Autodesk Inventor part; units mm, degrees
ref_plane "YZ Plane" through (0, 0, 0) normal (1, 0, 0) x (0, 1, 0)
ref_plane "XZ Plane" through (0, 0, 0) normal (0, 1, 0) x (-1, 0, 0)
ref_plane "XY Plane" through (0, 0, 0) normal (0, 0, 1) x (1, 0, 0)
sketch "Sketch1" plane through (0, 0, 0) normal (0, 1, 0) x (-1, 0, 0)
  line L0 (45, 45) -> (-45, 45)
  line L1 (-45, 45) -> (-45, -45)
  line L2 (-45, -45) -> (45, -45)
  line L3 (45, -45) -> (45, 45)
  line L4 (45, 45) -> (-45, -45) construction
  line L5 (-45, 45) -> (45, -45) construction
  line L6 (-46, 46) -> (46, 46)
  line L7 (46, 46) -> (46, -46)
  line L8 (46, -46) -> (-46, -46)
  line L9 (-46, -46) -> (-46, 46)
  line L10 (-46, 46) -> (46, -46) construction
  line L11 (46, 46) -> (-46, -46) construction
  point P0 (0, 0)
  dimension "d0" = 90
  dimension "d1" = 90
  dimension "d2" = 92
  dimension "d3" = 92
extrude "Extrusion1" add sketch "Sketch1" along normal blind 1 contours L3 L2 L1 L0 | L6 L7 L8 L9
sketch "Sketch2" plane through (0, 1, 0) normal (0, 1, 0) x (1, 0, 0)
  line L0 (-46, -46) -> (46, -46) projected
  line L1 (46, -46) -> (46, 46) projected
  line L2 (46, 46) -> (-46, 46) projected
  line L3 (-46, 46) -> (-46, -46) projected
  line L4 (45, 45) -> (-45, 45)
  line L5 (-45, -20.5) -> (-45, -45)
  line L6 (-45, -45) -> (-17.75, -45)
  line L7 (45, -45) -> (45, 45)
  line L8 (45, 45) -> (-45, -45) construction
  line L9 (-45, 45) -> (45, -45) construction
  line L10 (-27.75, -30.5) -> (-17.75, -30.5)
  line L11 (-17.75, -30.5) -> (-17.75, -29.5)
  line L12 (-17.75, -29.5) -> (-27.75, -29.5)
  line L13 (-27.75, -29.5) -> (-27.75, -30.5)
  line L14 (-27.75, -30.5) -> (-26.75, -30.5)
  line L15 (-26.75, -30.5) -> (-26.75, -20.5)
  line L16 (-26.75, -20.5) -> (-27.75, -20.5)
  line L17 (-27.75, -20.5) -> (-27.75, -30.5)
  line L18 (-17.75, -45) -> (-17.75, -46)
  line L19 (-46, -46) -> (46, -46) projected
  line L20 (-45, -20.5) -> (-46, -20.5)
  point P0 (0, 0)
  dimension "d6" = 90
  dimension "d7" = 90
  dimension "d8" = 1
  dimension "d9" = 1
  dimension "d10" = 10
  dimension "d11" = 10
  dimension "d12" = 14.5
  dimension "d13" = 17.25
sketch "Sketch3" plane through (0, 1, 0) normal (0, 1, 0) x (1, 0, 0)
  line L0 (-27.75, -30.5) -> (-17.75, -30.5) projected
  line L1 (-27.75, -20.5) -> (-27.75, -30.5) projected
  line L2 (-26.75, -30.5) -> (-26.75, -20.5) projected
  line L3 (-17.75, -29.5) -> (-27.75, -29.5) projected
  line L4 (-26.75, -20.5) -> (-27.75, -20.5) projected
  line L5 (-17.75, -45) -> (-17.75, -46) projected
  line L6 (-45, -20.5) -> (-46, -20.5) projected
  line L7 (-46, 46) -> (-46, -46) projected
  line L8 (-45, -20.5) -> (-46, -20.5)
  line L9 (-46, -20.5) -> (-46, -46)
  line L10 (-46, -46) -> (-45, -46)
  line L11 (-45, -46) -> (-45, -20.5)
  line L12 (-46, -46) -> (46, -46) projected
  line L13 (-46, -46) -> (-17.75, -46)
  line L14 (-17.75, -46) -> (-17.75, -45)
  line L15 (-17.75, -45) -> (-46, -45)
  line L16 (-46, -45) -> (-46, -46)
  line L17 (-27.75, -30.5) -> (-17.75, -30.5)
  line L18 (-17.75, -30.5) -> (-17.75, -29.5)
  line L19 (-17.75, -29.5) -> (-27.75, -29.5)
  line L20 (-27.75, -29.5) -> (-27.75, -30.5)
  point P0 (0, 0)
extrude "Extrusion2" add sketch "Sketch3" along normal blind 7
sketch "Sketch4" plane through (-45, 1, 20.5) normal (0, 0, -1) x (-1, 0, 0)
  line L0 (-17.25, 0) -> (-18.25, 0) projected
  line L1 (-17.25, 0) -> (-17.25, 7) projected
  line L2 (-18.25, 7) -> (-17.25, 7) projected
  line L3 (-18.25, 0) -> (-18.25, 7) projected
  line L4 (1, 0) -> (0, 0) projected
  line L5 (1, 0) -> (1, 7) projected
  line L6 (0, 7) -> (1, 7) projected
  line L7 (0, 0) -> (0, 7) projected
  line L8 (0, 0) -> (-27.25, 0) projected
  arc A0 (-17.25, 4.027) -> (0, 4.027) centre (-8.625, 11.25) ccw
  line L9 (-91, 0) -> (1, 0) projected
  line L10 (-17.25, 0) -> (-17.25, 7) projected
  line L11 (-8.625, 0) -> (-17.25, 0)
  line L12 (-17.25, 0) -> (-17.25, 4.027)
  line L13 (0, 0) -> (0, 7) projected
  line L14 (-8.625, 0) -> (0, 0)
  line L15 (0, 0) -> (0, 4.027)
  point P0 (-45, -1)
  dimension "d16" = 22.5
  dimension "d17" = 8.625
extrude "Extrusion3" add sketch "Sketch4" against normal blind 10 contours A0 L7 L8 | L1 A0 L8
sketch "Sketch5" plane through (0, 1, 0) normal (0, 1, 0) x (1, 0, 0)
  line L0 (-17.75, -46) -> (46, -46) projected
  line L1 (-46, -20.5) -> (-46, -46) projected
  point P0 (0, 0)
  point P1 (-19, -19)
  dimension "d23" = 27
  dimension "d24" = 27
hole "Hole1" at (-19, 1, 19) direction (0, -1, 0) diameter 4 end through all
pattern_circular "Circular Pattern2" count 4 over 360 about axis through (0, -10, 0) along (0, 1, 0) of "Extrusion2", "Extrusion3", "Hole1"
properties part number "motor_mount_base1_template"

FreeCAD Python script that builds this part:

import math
import FreeCAD as App
import Part
import Sketcher

V = App.Vector

doc = App.newDocument("Part")
params = doc.addObject("Spreadsheet::Sheet", "Params")
for row, (alias, value) in enumerate([
    ("sketch1_width", "92 mm"),
    ("pad1_length", "1 mm"),
    ("sketch2_width", "10 mm"),
    ("sketch2_width2", "9 mm"),
    ("sketch2_height", "24.5 mm"),
    ("sketch2_width3", "27.25 mm"),
    ("pad2_length", "7 mm"),
    ("sketch3_radius", "11.25 mm"),
    ("pad3_length", "10 mm"),
    ("sketch4_diameter", "4 mm"),
    ("hole_diameter", "4 mm"),
], start=1):
    params.set(f"A{row}", alias)
    params.set(f"B{row}", "=" + value)
    params.setAlias(f"B{row}", alias)

body = doc.addObject("PartDesign::Body", "Body")

sketch1 = body.newObject("Sketcher::SketchObject", "Sketch")
sketch1.AttachmentSupport = (doc.getObject("XZ_Plane"), [""])
sketch1.MapMode = "FlatFace"
sketch1.addGeometry([
    Part.LineSegment(V(-46, 46, 0), V(46, 46, 0)),
    Part.LineSegment(V(46, 46, 0), V(46, -46, 0)),
    Part.LineSegment(V(46, -46, 0), V(-46, -46, 0)),
    Part.LineSegment(V(-46, -46, 0), V(-46, 46, 0)),
], False)
sketch1.addConstraint([
    Sketcher.Constraint("Coincident", 0, 2, 1, 1),
    Sketcher.Constraint("Coincident", 1, 2, 2, 1),
    Sketcher.Constraint("Coincident", 2, 2, 3, 1),
    Sketcher.Constraint("Coincident", 3, 2, 0, 1),
    Sketcher.Constraint("Horizontal", 0),
    Sketcher.Constraint("Vertical", 1),
    Sketcher.Constraint("Horizontal", 2),
    Sketcher.Constraint("Vertical", 3),
    Sketcher.Constraint("Symmetric", 0, 2, 2, 2, -1, 1),
    Sketcher.Constraint("Equal", 2, 1),
    Sketcher.Constraint("DistanceX", 0, 1, 0, 2, 92.0),
])
sketch1.setExpression("Constraints[10]", "Params.sketch1_width")
pad1 = body.newObject("PartDesign::Pad", "Pad")
pad1.Profile = sketch1
pad1.setExpression("Length", "Params.pad1_length")
pad1.Reversed = True

sketch2 = body.newObject("Sketcher::SketchObject", "Sketch001")
sketch2.AttachmentSupport = (doc.getObject("XZ_Plane"), [""])
sketch2.MapMode = "FlatFace"
sketch2.AttachmentOffset = App.Placement(V(0, 0, -1), App.Rotation())
sketch2.addGeometry([
    Part.LineSegment(V(-27.8, 30.5, 0), V(-17.8, 30.5, 0)),
    Part.LineSegment(V(-17.8, 30.5, 0), V(-17.8, 29.5, 0)),
    Part.LineSegment(V(-17.8, 29.5, 0), V(-26.8, 29.5, 0)),
    Part.LineSegment(V(-26.8, 29.5, 0), V(-26.8, 20.5, 0)),
    Part.LineSegment(V(-26.8, 20.5, 0), V(-27.8, 20.5, 0)),
    Part.LineSegment(V(-27.8, 20.5, 0), V(-27.8, 30.5, 0)),
    Part.LineSegment(V(-17.8, 46, 0), V(-17.8, 45, 0)),
    Part.LineSegment(V(-17.8, 45, 0), V(-45, 45, 0)),
    Part.LineSegment(V(-45, 45, 0), V(-45, 20.5, 0)),
    Part.LineSegment(V(-45, 20.5, 0), V(-46, 20.5, 0)),
    Part.LineSegment(V(-46, 20.5, 0), V(-46, 46, 0)),
    Part.LineSegment(V(-46, 46, 0), V(-17.8, 46, 0)),
], False)
sketch2.addConstraint([
    Sketcher.Constraint("Coincident", 0, 2, 1, 1),
    Sketcher.Constraint("Coincident", 1, 2, 2, 1),
    Sketcher.Constraint("Coincident", 2, 2, 3, 1),
    Sketcher.Constraint("Coincident", 3, 2, 4, 1),
    Sketcher.Constraint("Coincident", 4, 2, 5, 1),
    Sketcher.Constraint("Coincident", 5, 2, 0, 1),
    Sketcher.Constraint("Coincident", 6, 2, 7, 1),
    Sketcher.Constraint("Coincident", 7, 2, 8, 1),
    Sketcher.Constraint("Coincident", 8, 2, 9, 1),
    Sketcher.Constraint("Coincident", 9, 2, 10, 1),
    Sketcher.Constraint("Coincident", 10, 2, 11, 1),
    Sketcher.Constraint("Coincident", 11, 2, 6, 1),
    Sketcher.Constraint("Horizontal", 0),
    Sketcher.Constraint("Vertical", 1),
    Sketcher.Constraint("Horizontal", 2),
    Sketcher.Constraint("Vertical", 3),
    Sketcher.Constraint("Horizontal", 4),
    Sketcher.Constraint("Vertical", 5),
    Sketcher.Constraint("Vertical", 6),
    Sketcher.Constraint("Horizontal", 7),
    Sketcher.Constraint("Vertical", 8),
    Sketcher.Constraint("Horizontal", 9),
    Sketcher.Constraint("Vertical", 10),
    Sketcher.Constraint("Horizontal", 11),
    Sketcher.Constraint("Horizontal", 4, 2, 8, 2),
    Sketcher.Constraint("Vertical", 1, 2, 6, 2),
    Sketcher.Constraint("Equal", 4, 9),
    Sketcher.Constraint("Equal", 9, 1),
    Sketcher.Constraint("Equal", 2, 3),
    Sketcher.Constraint("Equal", 1, 6),
    Sketcher.Constraint("DistanceX", 0, 1, 0, 2, 10.0),
    Sketcher.Constraint("DistanceX", 2, 2, 2, 1, 9.0),
    Sketcher.Constraint("DistanceY", 8, 2, 8, 1, 24.5),
    Sketcher.Constraint("DistanceY", -1, 1, 6, 2, 45.0),
    Sketcher.Constraint("DistanceX", 7, 2, -1, 1, 45.0),
    Sketcher.Constraint("DistanceX", 7, 2, 7, 1, 27.25),
])
sketch2.setExpression("Constraints[30]", "Params.sketch2_width")
sketch2.setExpression("Constraints[31]", "Params.sketch2_width2")
sketch2.setExpression("Constraints[32]", "Params.sketch2_height")
sketch2.setExpression("Constraints[35]", "Params.sketch2_width3")
pad2 = body.newObject("PartDesign::Pad", "Pad001")
pad2.Profile = sketch2
pad2.setExpression("Length", "Params.pad2_length")
pad2.Reversed = True

sketch3 = body.newObject("Sketcher::SketchObject", "Sketch002")
sketch3.AttachmentSupport = (doc.getObject("XY_Plane"), [""])
sketch3.MapMode = "FlatFace"
sketch3.AttachmentOffset = App.Placement(V(0, 0, 20.5), App.Rotation())
sketch3.addGeometry([
    Part.ArcOfCircle(Part.Circle(V(-36.4, 12.2, 0), V(0, 0, 1), 11.2), math.radians(-140), math.radians(-90)),
    Part.LineSegment(V(-36.4, 1, 0), V(-45, 1, 0)),
    Part.LineSegment(V(-45, 1, 0), V(-45, 5, 0)),
    Part.LineSegment(V(-27.8, 5, 0), V(-27.8, 1, 0)),
    Part.LineSegment(V(-27.8, 1, 0), V(-36.4, 1, 0)),
    Part.ArcOfCircle(Part.Circle(V(-36.4, 12.2, 0), V(0, 0, 1), 11.2), math.radians(-90), math.radians(-40)),
], False)
sketch3.addConstraint([
    Sketcher.Constraint("Tangent", 0, 2, 1, 1),
    Sketcher.Constraint("Coincident", 1, 2, 2, 1),
    Sketcher.Constraint("Coincident", 2, 2, 0, 1),
    Sketcher.Constraint("Coincident", 3, 2, 4, 1),
    Sketcher.Constraint("Tangent", 4, 2, 5, 1),
    Sketcher.Constraint("Coincident", 5, 2, 3, 1),
    Sketcher.Constraint("Horizontal", 1),
    Sketcher.Constraint("Vertical", 2),
    Sketcher.Constraint("Vertical", 3),
    Sketcher.Constraint("Horizontal", 4),
    Sketcher.Constraint("Coincident", 5, 3, 0, 3),
    Sketcher.Constraint("Equal", 0, 5),
    Sketcher.Constraint("Horizontal", 2, 2, 5, 2),
    Sketcher.Constraint("Radius", 0, 11.25),
    Sketcher.Constraint("DistanceX", 1, 2, 1, 1, 8.625),
    Sketcher.Constraint("DistanceY", -1, 1, 0, 2, 1.0),
    Sketcher.Constraint("DistanceX", 1, 2, -1, 1, 45.0),
])
sketch3.setExpression("Constraints[13]", "Params.sketch3_radius")
pad3 = body.newObject("PartDesign::Pad", "Pad002")
pad3.Profile = sketch3
pad3.setExpression("Length", "Params.pad3_length")

sketch4 = body.newObject("Sketcher::SketchObject", "Sketch003")
sketch4.AttachmentSupport = (doc.getObject("XZ_Plane"), [""])
sketch4.MapMode = "FlatFace"
sketch4.AttachmentOffset = App.Placement(V(0, 0, -1), App.Rotation())
sketch4.addGeometry(Part.Circle(V(-19, 19, 0), V(0, 0, 1), 2), False)
sketch4.addConstraint([
    Sketcher.Constraint("Diameter", 0, 4.0),
    Sketcher.Constraint("DistanceX", 0, 3, -1, 1, 19.0),
    Sketcher.Constraint("DistanceY", -1, 1, 0, 3, 19.0),
])
sketch4.setExpression("Constraints[0]", "Params.sketch4_diameter")
doc.recompute()
hole = body.newObject("PartDesign::Hole", "Hole")
hole.Profile = sketch4
hole.ThreadType = "None"
hole.setExpression("Diameter", "Params.hole_diameter")
hole.DepthType = "ThroughAll"
hole.Reversed = True
doc.recompute()

polarpattern = body.newObject("PartDesign::PolarPattern", "PolarPattern")
polarpattern.Originals = [pad2, pad3, hole]
polarpattern.Axis = (doc.getObject("Y_Axis"), [""])
polarpattern.Angle = 360
polarpattern.Occurrences = 4
body.Tip = polarpattern

doc.recompute()
